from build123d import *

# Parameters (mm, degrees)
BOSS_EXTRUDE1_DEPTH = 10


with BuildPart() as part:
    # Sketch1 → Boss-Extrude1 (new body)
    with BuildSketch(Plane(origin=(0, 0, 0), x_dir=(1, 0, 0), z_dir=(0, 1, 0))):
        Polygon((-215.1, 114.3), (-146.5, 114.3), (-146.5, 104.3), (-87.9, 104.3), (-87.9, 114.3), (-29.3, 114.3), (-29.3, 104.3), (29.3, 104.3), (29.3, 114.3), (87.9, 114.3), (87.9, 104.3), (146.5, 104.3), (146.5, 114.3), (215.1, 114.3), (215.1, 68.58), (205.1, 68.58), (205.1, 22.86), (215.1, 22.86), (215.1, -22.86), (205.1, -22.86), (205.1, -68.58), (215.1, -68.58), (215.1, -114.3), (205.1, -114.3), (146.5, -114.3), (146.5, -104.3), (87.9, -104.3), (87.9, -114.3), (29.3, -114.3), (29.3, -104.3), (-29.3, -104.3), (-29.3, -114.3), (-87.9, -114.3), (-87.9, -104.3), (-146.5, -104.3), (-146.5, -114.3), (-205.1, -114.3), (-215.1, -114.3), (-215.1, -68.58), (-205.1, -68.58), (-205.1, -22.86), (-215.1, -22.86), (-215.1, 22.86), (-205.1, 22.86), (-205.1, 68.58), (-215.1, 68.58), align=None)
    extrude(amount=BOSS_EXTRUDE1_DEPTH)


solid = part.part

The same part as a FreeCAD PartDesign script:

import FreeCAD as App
import Part
import Sketcher

V = App.Vector


def add_polygon(sketch, points):
    """Adds a closed chain of lines whose ends are joined by coincident constraints."""
    first, n = sketch.GeometryCount, len(points)
    for a, b in zip(points, points[1:] + points[:1]):
        sketch.addGeometry(Part.LineSegment(App.Vector(*a, 0), App.Vector(*b, 0)), False)
    for i in range(n):
        sketch.addConstraint(Sketcher.Constraint("Coincident", first + i, 2, first + (i + 1) % n, 1))

doc = App.newDocument("Part")
body = doc.addObject("PartDesign::Body", "Body")

sketch1 = body.newObject("Sketcher::SketchObject", "Sketch")
sketch1.AttachmentSupport = (doc.getObject("XZ_Plane"), [""])
sketch1.MapMode = "FlatFace"
add_polygon(sketch1, [(-146, -114), (-215, -114), (-215, -69), (-205, -69), (-205, -23), (-215, -23), (-215, 23), (-205, 23), (-205, 69), (-215, 69), (-215, 114), (-146, 114), (-146, 104), (-88, 104), (-88, 114), (-29, 114), (-29, 104), (29, 104), (29, 114), (88, 114), (88, 104), (146, 104), (146, 114), (215, 114), (215, 69), (205, 69), (205, 23), (215, 23), (215, -23), (205, -23), (205, -69), (215, -69), (215, -114), (146, -114), (146, -104), (88, -104), (88, -114), (29, -114), (29, -104), (-29, -104), (-29, -114), (-88, -114), (-88, -104), (-146, -104)])
sketch1.addConstraint([
    Sketcher.Constraint("Horizontal", 0),
    Sketcher.Constraint("Vertical", 1),
    Sketcher.Constraint("Horizontal", 2),
    Sketcher.Constraint("Vertical", 3),
    Sketcher.Constraint("Horizontal", 4),
    Sketcher.Constraint("Vertical", 5),
    Sketcher.Constraint("Horizontal", 6),
    Sketcher.Constraint("Vertical", 7),
    Sketcher.Constraint("Horizontal", 8),
    Sketcher.Constraint("Vertical", 9),
    Sketcher.Constraint("Horizontal", 10),
    Sketcher.Constraint("Vertical", 11),
    Sketcher.Constraint("Horizontal", 12),
    Sketcher.Constraint("Vertical", 13),
    Sketcher.Constraint("Horizontal", 14),
    Sketcher.Constraint("Vertical", 15),
    Sketcher.Constraint("Horizontal", 16),
    Sketcher.Constraint("Vertical", 17),
    Sketcher.Constraint("Horizontal", 18),
    Sketcher.Constraint("Vertical", 19),
    Sketcher.Constraint("Horizontal", 20),
    Sketcher.Constraint("Vertical", 21),
    Sketcher.Constraint("Horizontal", 22),
    Sketcher.Constraint("Vertical", 23),
    Sketcher.Constraint("Horizontal", 24),
    Sketcher.Constraint("Vertical", 25),
    Sketcher.Constraint("Horizontal", 26),
    Sketcher.Constraint("Vertical", 27),
    Sketcher.Constraint("Horizontal", 28),
    Sketcher.Constraint("Vertical", 29),
    Sketcher.Constraint("Horizontal", 30),
    Sketcher.Constraint("Vertical", 31),
    Sketcher.Constraint("Horizontal", 32),
    Sketcher.Constraint("Vertical", 33),
    Sketcher.Constraint("Horizontal", 34),
    Sketcher.Constraint("Vertical", 35),
    Sketcher.Constraint("Horizontal", 36),
    Sketcher.Constraint("Vertical", 37),
    Sketcher.Constraint("Horizontal", 38),
    Sketcher.Constraint("Vertical", 39),
    Sketcher.Constraint("Horizontal", 40),
    Sketcher.Constraint("Vertical", 41),
    Sketcher.Constraint("Horizontal", 42),
    Sketcher.Constraint("Vertical", 43),
    Sketcher.Constraint("Symmetric", 0, 2, 22, 2, -1, 1),
    Sketcher.Constraint("Symmetric", 2, 2, 24, 2, -1, 1),
    Sketcher.Constraint("Symmetric", 4, 2, 26, 2, -1, 1),
    Sketcher.Constraint("Symmetric", 6, 2, 28, 2, -1, 1),
    Sketcher.Constraint("Symmetric", 8, 2, 30, 2, -1, 1),
    Sketcher.Constraint("Symmetric", 10, 2, 32, 2, -1, 1),
    Sketcher.Constraint("Symmetric", 12, 2, 34, 2, -1, 1),
    Sketcher.Constraint("Symmetric", 14, 2, 36, 2, -1, 1),
    Sketcher.Constraint("Symmetric", 16, 2, 38, 2, -1, 1),
    Sketcher.Constraint("Symmetric", 18, 2, 40, 2, -1, 1),
    Sketcher.Constraint("Symmetric", 20, 2, 42, 2, -1, 1),
    Sketcher.Constraint("Symmetric", 14, 2, 17, 2, -2),
    Sketcher.Constraint("Symmetric", 12, 2, 19, 2, -2),
    Sketcher.Constraint("Symmetric", 10, 2, 21, 2, -2),
    Sketcher.Constraint("Symmetric", 8, 2, 23, 2, -2),
    Sketcher.Constraint("Symmetric", 6, 2, 25, 2, -2),
    Sketcher.Constraint("Horizontal", 10, 2, 13, 2),
    Sketcher.Constraint("Horizontal", 12, 2, 15, 2),
    Sketcher.Constraint("Vertical", 1, 2, 4, 2),
    Sketcher.Constraint("Equal", 12, 14),
    Sketcher.Constraint("Equal", 14, 16),
    Sketcher.Constraint("Equal", 1, 3),
    Sketcher.Constraint("Equal", 3, 5),
    Sketcher.Constraint("Equal", 30, 11),
    Sketcher.Constraint("DistanceX", 2, 1, 2, 2, 10.0),
    Sketcher.Constraint("DistanceX", 0, 2, 0, 1, 68.6),
    Sketcher.Constraint("DistanceX", 12, 1, 12, 2, 58.6),
    Sketcher.Constraint("DistanceY", 1, 1, 1, 2, 45.72),
])
pad1 = body.newObject("PartDesign::Pad", "Pad")
pad1.Profile = sketch1
pad1.Length = 10
pad1.Reversed = True

doc.recompute()
